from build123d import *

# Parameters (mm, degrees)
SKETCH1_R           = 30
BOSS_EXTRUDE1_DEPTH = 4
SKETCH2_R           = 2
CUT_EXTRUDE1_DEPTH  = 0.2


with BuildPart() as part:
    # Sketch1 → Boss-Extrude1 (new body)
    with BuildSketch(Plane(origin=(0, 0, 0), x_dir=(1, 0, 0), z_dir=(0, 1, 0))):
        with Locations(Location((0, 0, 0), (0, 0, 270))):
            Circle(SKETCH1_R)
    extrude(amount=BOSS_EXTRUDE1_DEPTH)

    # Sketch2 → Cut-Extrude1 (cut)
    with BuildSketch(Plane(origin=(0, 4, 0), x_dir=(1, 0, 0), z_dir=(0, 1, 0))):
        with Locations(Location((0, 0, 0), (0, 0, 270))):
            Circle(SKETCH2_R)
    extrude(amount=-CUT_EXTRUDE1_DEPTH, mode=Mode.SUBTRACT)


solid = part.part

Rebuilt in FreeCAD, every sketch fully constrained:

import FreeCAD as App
import Part
import Sketcher
from FreeCAD import Vector
Q = App.Units.Quantity

doc = App.newDocument("Part")
body = doc.addObject("PartDesign::Body", "Body")

# Sketch on XZ plane
sketch1 = body.newObject("Sketcher::SketchObject", "Sketch")
sketch1.AttachmentSupport = (doc.getObject("XZ_Plane"), [""])
sketch1.MapMode = "FlatFace"
sketch1.addGeometry(Part.Circle(Vector(0, 0, 0), Vector(0, 0, 1), 30), False)
sketch1.addConstraint([
    Sketcher.Constraint("Coincident", 0, 3, -1, 1),
    Sketcher.Constraint("Diameter", 0, Q("60 mm")),
])
pad1 = body.newObject("PartDesign::Pad", "Pad")
pad1.Profile = sketch1
pad1.Length = 4
pad1.Reversed = True

# Sketch on XZ plane
sketch2 = body.newObject("Sketcher::SketchObject", "Sketch001")
sketch2.AttachmentSupport = (doc.getObject("XZ_Plane"), [""])
sketch2.MapMode = "FlatFace"
sketch2.AttachmentOffset = App.Placement(Vector(0, 0, -4), App.Rotation())
sketch2.addGeometry(Part.Circle(Vector(0, 0, 0), Vector(0, 0, 1), 2), False)
sketch2.addConstraint([
    Sketcher.Constraint("Coincident", 0, 3, -1, 1),
    Sketcher.Constraint("Diameter", 0, Q("4 mm")),
])
pocket1 = body.newObject("PartDesign::Pocket", "Pocket")
pocket1.Profile = sketch2
pocket1.Length = 0.2
pocket1.Reversed = True

doc.recompute()
